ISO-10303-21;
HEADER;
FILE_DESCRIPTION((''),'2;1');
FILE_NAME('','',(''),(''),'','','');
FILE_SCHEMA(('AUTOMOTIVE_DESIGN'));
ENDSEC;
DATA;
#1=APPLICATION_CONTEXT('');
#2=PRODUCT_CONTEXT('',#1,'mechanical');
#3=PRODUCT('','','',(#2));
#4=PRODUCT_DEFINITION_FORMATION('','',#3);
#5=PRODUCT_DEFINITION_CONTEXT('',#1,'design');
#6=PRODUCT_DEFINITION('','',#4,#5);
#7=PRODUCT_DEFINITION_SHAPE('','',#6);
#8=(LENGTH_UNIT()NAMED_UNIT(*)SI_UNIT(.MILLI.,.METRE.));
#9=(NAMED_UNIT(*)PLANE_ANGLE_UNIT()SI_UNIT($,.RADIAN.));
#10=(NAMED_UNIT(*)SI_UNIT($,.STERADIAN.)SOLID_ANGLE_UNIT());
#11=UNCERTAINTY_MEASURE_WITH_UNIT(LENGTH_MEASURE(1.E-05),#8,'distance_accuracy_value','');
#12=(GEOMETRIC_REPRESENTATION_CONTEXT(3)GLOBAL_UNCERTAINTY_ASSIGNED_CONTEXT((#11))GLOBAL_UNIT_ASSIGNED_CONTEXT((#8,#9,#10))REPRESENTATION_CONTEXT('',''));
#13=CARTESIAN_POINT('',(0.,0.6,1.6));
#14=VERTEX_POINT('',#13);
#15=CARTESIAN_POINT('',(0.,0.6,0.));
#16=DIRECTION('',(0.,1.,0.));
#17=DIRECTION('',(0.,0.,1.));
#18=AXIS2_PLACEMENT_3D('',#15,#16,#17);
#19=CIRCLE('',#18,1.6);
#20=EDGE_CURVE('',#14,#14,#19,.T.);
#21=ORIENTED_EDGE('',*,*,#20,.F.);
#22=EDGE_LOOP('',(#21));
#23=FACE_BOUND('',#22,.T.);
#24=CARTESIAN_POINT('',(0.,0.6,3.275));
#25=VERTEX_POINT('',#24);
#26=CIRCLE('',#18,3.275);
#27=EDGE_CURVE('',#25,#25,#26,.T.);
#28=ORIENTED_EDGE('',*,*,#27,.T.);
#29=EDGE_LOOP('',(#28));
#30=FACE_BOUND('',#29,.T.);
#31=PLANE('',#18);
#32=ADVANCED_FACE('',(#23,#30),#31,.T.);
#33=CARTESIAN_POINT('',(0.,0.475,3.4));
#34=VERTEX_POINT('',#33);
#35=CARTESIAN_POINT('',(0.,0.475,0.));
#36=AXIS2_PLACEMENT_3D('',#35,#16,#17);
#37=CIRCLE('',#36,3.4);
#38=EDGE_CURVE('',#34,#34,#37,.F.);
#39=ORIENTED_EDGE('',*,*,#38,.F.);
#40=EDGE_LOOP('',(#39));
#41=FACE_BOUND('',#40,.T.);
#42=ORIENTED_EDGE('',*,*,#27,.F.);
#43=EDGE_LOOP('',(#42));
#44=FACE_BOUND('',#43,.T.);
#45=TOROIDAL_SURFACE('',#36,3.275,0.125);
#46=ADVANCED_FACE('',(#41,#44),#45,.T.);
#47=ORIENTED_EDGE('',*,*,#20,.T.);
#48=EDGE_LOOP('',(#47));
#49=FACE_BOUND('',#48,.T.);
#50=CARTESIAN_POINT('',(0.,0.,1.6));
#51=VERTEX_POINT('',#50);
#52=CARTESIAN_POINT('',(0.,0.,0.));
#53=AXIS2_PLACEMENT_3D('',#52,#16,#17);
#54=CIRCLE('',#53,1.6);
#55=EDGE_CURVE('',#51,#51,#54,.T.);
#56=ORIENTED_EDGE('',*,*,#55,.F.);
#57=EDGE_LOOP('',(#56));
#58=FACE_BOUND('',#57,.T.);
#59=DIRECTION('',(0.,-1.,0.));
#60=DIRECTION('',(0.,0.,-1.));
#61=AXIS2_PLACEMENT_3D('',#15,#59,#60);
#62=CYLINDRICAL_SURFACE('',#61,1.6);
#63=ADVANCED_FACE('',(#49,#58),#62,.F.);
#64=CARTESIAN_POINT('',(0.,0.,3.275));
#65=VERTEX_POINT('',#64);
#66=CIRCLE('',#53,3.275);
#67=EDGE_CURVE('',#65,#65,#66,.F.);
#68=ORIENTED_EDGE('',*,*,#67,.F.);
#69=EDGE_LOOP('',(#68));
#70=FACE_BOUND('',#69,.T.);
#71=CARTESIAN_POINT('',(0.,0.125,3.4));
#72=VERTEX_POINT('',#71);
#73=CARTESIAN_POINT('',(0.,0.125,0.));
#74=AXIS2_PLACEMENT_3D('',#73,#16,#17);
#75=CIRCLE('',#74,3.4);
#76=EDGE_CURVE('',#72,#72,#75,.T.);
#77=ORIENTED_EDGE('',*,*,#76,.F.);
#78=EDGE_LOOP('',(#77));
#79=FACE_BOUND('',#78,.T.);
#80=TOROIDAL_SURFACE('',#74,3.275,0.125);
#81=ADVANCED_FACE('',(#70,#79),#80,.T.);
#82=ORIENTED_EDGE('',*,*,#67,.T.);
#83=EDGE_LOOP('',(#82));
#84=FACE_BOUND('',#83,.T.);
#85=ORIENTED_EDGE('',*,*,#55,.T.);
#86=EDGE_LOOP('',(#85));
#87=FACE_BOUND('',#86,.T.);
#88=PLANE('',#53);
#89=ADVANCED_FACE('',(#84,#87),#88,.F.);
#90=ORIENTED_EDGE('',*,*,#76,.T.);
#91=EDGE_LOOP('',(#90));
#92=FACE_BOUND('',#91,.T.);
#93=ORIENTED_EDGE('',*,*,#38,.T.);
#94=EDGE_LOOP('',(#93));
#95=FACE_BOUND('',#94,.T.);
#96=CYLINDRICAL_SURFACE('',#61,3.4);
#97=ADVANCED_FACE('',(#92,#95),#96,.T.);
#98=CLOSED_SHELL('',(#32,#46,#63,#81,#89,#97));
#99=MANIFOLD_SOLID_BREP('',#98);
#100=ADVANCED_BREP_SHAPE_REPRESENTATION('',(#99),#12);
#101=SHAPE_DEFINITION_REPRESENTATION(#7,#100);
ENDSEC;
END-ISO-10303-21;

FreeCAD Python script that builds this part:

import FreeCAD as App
import Part
import Sketcher

V = App.Vector


def edges_at(feature, points):
    """Names of the edges that pass closest to the given points."""
    edges = feature.Shape.Edges
    near = lambda p: min(range(len(edges)), key=lambda i: edges[i].distToShape(Part.Vertex(*p))[0])
    return sorted({f"Edge{near(p) + 1}" for p in points})

doc = App.newDocument("Part")
body = doc.addObject("PartDesign::Body", "Body")

sketch1 = body.newObject("Sketcher::SketchObject", "Sketch")
sketch1.AttachmentSupport = (doc.getObject("XZ_Plane"), [""])
sketch1.MapMode = "FlatFace"
sketch1.addGeometry([
    Part.Circle(V(0, 0, 0), V(0, 0, 1), 3.4),
    Part.Circle(V(0, 0, 0), V(0, 0, 1), 1.6),
], False)
sketch1.addConstraint([
    Sketcher.Constraint("Coincident", 0, 3, -1, 1),
    Sketcher.Constraint("Coincident", 1, 3, -1, 1),
    Sketcher.Constraint("Diameter", 0, 6.8),
    Sketcher.Constraint("Diameter", 1, 3.2),
])
pad1 = body.newObject("PartDesign::Pad", "Pad")
pad1.Profile = sketch1
pad1.Length = 0.6
pad1.Reversed = True
doc.recompute()

fillet = body.newObject("PartDesign::Fillet", "Fillet")
fillet.Base = (pad1, edges_at(pad1, [(0, 0, -3.4), (0, 0.6, -3.4)]))
fillet.Radius = 0.125

doc.recompute()
